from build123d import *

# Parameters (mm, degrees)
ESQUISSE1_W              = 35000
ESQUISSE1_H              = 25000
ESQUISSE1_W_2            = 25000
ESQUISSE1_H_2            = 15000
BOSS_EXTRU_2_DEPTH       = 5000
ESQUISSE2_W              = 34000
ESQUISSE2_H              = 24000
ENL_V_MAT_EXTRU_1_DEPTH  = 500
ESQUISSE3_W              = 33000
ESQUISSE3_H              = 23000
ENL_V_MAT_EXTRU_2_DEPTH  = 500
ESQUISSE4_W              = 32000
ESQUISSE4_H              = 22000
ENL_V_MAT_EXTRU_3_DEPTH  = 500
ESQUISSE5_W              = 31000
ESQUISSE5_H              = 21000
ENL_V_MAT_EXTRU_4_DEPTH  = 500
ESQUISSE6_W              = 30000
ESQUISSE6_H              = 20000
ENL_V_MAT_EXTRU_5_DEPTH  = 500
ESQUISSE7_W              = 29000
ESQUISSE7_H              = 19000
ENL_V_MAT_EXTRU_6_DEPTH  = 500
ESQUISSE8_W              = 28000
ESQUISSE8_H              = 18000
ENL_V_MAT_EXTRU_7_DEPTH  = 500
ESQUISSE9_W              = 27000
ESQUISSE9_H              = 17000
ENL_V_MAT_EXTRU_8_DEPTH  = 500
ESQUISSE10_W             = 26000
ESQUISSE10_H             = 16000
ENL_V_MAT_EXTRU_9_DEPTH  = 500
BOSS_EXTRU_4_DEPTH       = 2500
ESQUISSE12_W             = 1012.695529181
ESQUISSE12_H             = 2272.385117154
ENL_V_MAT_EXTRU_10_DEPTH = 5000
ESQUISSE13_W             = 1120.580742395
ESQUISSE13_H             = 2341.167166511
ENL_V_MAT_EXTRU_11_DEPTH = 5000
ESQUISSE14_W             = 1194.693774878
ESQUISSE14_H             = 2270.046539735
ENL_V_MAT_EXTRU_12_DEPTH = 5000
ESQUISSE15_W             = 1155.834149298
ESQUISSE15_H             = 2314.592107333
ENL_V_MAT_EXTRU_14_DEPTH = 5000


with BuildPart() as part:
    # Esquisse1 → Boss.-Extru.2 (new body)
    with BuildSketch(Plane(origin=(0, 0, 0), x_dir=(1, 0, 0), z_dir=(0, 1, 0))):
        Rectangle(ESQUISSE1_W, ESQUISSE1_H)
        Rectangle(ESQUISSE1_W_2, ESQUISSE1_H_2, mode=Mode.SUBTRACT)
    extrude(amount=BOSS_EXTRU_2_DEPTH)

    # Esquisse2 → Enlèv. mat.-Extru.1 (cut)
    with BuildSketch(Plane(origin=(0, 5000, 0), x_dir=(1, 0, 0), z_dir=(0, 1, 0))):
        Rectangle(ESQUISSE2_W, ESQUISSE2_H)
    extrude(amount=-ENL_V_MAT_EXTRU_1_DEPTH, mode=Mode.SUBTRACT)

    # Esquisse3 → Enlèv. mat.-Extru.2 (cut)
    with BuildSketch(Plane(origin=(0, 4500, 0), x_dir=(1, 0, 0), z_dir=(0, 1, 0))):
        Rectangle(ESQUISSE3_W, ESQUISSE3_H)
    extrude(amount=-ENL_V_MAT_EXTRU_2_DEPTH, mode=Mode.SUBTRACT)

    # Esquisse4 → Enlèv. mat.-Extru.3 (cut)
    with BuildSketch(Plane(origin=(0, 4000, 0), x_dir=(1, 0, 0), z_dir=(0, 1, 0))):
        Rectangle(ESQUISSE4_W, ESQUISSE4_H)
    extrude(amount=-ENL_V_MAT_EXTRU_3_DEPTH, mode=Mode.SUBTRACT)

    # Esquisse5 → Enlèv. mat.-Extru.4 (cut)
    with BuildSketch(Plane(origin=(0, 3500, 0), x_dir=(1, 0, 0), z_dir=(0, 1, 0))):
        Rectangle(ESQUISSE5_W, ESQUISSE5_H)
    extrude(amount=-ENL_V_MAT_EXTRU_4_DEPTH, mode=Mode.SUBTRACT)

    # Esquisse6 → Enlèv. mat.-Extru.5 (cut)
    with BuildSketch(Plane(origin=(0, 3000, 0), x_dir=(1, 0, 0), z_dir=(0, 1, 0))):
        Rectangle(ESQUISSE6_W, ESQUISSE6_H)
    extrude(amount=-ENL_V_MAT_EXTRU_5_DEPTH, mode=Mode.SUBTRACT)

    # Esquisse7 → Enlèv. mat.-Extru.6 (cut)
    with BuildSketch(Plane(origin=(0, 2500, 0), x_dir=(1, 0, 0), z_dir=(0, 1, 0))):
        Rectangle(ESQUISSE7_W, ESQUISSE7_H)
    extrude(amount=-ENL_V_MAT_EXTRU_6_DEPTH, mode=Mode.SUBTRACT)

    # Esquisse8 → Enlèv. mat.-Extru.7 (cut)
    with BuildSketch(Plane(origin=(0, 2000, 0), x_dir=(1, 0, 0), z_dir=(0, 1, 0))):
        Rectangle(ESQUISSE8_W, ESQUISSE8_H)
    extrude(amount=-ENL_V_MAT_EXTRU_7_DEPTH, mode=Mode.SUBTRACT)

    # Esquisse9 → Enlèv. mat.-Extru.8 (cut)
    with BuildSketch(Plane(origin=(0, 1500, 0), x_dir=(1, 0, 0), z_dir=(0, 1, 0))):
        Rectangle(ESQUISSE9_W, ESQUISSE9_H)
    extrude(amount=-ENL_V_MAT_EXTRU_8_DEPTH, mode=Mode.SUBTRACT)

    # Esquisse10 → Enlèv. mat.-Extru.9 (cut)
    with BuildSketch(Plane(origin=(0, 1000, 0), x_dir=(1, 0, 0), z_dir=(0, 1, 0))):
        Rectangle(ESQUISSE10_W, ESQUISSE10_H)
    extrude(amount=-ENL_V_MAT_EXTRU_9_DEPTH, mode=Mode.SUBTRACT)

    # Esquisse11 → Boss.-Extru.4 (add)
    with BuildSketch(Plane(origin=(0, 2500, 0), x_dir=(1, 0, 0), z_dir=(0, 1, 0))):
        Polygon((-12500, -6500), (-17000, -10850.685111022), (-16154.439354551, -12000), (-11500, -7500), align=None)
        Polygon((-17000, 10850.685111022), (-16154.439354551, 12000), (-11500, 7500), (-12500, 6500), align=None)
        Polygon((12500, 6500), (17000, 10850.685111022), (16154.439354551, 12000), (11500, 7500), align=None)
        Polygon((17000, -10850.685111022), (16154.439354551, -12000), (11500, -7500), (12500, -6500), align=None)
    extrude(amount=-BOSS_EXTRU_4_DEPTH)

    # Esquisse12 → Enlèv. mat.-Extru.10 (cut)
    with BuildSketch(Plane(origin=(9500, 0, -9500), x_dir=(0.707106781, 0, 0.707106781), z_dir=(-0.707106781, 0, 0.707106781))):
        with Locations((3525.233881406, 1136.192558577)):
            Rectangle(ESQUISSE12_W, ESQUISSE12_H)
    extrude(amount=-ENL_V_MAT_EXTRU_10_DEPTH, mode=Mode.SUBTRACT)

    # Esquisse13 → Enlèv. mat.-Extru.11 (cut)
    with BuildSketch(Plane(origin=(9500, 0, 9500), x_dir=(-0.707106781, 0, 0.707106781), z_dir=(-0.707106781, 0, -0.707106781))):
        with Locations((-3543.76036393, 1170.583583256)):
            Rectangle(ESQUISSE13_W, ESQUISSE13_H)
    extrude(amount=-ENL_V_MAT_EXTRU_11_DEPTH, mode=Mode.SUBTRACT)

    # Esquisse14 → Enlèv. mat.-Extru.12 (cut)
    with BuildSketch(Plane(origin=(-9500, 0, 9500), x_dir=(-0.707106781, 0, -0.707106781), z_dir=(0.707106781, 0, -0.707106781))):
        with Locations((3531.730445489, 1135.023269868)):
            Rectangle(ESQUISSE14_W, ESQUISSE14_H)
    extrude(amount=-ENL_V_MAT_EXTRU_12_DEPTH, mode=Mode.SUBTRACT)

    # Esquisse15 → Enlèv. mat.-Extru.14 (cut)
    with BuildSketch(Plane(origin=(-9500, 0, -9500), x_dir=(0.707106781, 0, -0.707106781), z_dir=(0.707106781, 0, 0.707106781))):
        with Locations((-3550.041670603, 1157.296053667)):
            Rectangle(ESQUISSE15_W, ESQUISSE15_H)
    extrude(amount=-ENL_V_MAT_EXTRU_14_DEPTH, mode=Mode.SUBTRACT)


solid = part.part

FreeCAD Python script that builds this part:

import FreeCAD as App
import Part
import Sketcher
from FreeCAD import Vector
Q = App.Units.Quantity

doc = App.newDocument("Part")
params = doc.addObject("Spreadsheet::Sheet", "Params")
for row, (alias, value) in enumerate([
    ("sketch1_width", "35000 mm"),
    ("sketch1_width2", "25000 mm"),
    ("sketch1_height", "15000 mm"),
    ("pad1_length", "5000 mm"),
    ("sketch2_width", "34000 mm"),
    ("sketch2_height", "24000 mm"),
    ("pocket1_length", "500 mm"),
    ("sketch3_width", "33000 mm"),
    ("sketch3_height", "23000 mm"),
    ("pocket2_length", "500 mm"),
    ("sketch4_width", "32000 mm"),
    ("sketch4_height", "22000 mm"),
    ("pocket3_length", "500 mm"),
    ("sketch5_width", "31000 mm"),
    ("sketch5_height", "21000 mm"),
    ("pocket4_length", "500 mm"),
    ("sketch6_width", "30000 mm"),
    ("sketch6_height", "20000 mm"),
    ("pocket5_length", "500 mm"),
    ("sketch7_width", "29000 mm"),
    ("sketch7_height", "19000 mm"),
    ("pocket6_length", "500 mm"),
    ("sketch8_width", "28000 mm"),
    ("sketch8_height", "18000 mm"),
    ("pocket7_length", "500 mm"),
    ("sketch9_width", "27000 mm"),
    ("sketch9_height", "17000 mm"),
    ("pocket8_length", "500 mm"),
    ("sketch10_width", "26000 mm"),
    ("sketch10_height", "16000 mm"),
    ("pocket9_length", "500 mm"),
    ("sketch11_length", "6259.27 mm"),
    ("pad2_length", "2500 mm"),
    ("pocket10_length", "5000 mm"),
    ("pocket11_length", "5000 mm"),
    ("pocket12_length", "5000 mm"),
    ("pocket13_length", "5000 mm"),
], start=1):
    params.set(f"A{row}", alias)
    params.set(f"B{row}", "=" + value)
    params.setAlias(f"B{row}", alias)

body = doc.addObject("PartDesign::Body", "Body")

sketch1 = doc.addObject("Sketcher::SketchObject", "Sketch")
body.addObject(sketch1)
sketch1.AttachmentSupport = (doc.XZ_Plane, [""])
sketch1.MapMode = "FlatFace"
sketch1.addGeometry([
    Part.LineSegment(Vector(-17500, -12500, 0), Vector(-17500, 12500, 0)),
    Part.LineSegment(Vector(-17500, 12500, 0), Vector(17500, 12500, 0)),
    Part.LineSegment(Vector(17500, 12500, 0), Vector(17500, -12500, 0)),
    Part.LineSegment(Vector(17500, -12500, 0), Vector(-17500, -12500, 0)),
    Part.LineSegment(Vector(12500, 7500, 0), Vector(-12500, 7500, 0)),
    Part.LineSegment(Vector(-12500, 7500, 0), Vector(-12500, -7500, 0)),
    Part.LineSegment(Vector(-12500, -7500, 0), Vector(12500, -7500, 0)),
    Part.LineSegment(Vector(12500, -7500, 0), Vector(12500, 7500, 0)),
], False)
sketch1.addConstraint([
    Sketcher.Constraint("Coincident", 0, 2, 1, 1),
    Sketcher.Constraint("Coincident", 1, 2, 2, 1),
    Sketcher.Constraint("Coincident", 2, 2, 3, 1),
    Sketcher.Constraint("Coincident", 3, 2, 0, 1),
    Sketcher.Constraint("Coincident", 4, 2, 5, 1),
    Sketcher.Constraint("Coincident", 5, 2, 6, 1),
    Sketcher.Constraint("Coincident", 6, 2, 7, 1),
    Sketcher.Constraint("Coincident", 7, 2, 4, 1),
    Sketcher.Constraint("Vertical", 0),
    Sketcher.Constraint("Horizontal", 1),
    Sketcher.Constraint("Vertical", 2),
    Sketcher.Constraint("Horizontal", 3),
    Sketcher.Constraint("Horizontal", 4),
    Sketcher.Constraint("Vertical", 5),
    Sketcher.Constraint("Horizontal", 6),
    Sketcher.Constraint("Vertical", 7),
    Sketcher.Constraint("Symmetric", 0, 2, 2, 2, -1, 1),
    Sketcher.Constraint("Symmetric", 4, 2, 6, 2, -1, 1),
    Sketcher.Constraint("Equal", 6, 0),
    Sketcher.Constraint("DistanceX", 1, 1, 1, 2, Q("35000 mm")),
    Sketcher.Constraint("DistanceX", 4, 2, 4, 1, Q("25000 mm")),
    Sketcher.Constraint("DistanceY", 5, 2, 5, 1, Q("15000 mm")),
])
sketch1.setExpression("Constraints[19]", "Params.sketch1_width")
sketch1.setExpression("Constraints[20]", "Params.sketch1_width2")
sketch1.setExpression("Constraints[21]", "Params.sketch1_height")
pad1 = doc.addObject("PartDesign::Pad", "Pad")
body.addObject(pad1)
pad1.Profile = sketch1
pad1.setExpression("Length", "Params.pad1_length")
pad1.Reversed = True

sketch2 = doc.addObject("Sketcher::SketchObject", "Sketch001")
body.addObject(sketch2)
sketch2.AttachmentSupport = (doc.XZ_Plane, [""])
sketch2.MapMode = "FlatFace"
sketch2.AttachmentOffset = App.Placement(Vector(0, 0, -5000), App.Rotation())
sketch2.addGeometry([
    Part.LineSegment(Vector(-17000, -12000, 0), Vector(-17000, 12000, 0)),
    Part.LineSegment(Vector(-17000, 12000, 0), Vector(17000, 12000, 0)),
    Part.LineSegment(Vector(17000, 12000, 0), Vector(17000, -12000, 0)),
    Part.LineSegment(Vector(17000, -12000, 0), Vector(-17000, -12000, 0)),
], False)
sketch2.addConstraint([
    Sketcher.Constraint("Coincident", 0, 2, 1, 1),
    Sketcher.Constraint("Coincident", 1, 2, 2, 1),
    Sketcher.Constraint("Coincident", 2, 2, 3, 1),
    Sketcher.Constraint("Coincident", 3, 2, 0, 1),
    Sketcher.Constraint("Vertical", 0),
    Sketcher.Constraint("Horizontal", 1),
    Sketcher.Constraint("Vertical", 2),
    Sketcher.Constraint("Horizontal", 3),
    Sketcher.Constraint("Symmetric", 0, 2, 2, 2, -1, 1),
    Sketcher.Constraint("DistanceX", 1, 1, 1, 2, Q("34000 mm")),
    Sketcher.Constraint("DistanceY", 0, 1, 0, 2, Q("24000 mm")),
])
sketch2.setExpression("Constraints[9]", "Params.sketch2_width")
sketch2.setExpression("Constraints[10]", "Params.sketch2_height")
pocket1 = doc.addObject("PartDesign::Pocket", "Pocket")
body.addObject(pocket1)
pocket1.Profile = sketch2
pocket1.setExpression("Length", "Params.pocket1_length")
pocket1.Reversed = True

sketch3 = doc.addObject("Sketcher::SketchObject", "Sketch002")
body.addObject(sketch3)
sketch3.AttachmentSupport = (doc.XZ_Plane, [""])
sketch3.MapMode = "FlatFace"
sketch3.AttachmentOffset = App.Placement(Vector(0, 0, -4500), App.Rotation())
sketch3.addGeometry([
    Part.LineSegment(Vector(-16500, -11500, 0), Vector(-16500, 11500, 0)),
    Part.LineSegment(Vector(-16500, 11500, 0), Vector(16500, 11500, 0)),
    Part.LineSegment(Vector(16500, 11500, 0), Vector(16500, -11500, 0)),
    Part.LineSegment(Vector(16500, -11500, 0), Vector(-16500, -11500, 0)),
], False)
sketch3.addConstraint([
    Sketcher.Constraint("Coincident", 0, 2, 1, 1),
    Sketcher.Constraint("Coincident", 1, 2, 2, 1),
    Sketcher.Constraint("Coincident", 2, 2, 3, 1),
    Sketcher.Constraint("Coincident", 3, 2, 0, 1),
    Sketcher.Constraint("Vertical", 0),
    Sketcher.Constraint("Horizontal", 1),
    Sketcher.Constraint("Vertical", 2),
    Sketcher.Constraint("Horizontal", 3),
    Sketcher.Constraint("Symmetric", 0, 2, 2, 2, -1, 1),
    Sketcher.Constraint("DistanceX", 1, 1, 1, 2, Q("33000 mm")),
    Sketcher.Constraint("DistanceY", 0, 1, 0, 2, Q("23000 mm")),
])
sketch3.setExpression("Constraints[9]", "Params.sketch3_width")
sketch3.setExpression("Constraints[10]", "Params.sketch3_height")
pocket2 = doc.addObject("PartDesign::Pocket", "Pocket001")
body.addObject(pocket2)
pocket2.Profile = sketch3
pocket2.setExpression("Length", "Params.pocket2_length")
pocket2.Reversed = True

sketch4 = doc.addObject("Sketcher::SketchObject", "Sketch003")
body.addObject(sketch4)
sketch4.AttachmentSupport = (doc.XZ_Plane, [""])
sketch4.MapMode = "FlatFace"
sketch4.AttachmentOffset = App.Placement(Vector(0, 0, -4000), App.Rotation())
sketch4.addGeometry([
    Part.LineSegment(Vector(-16000, -11000, 0), Vector(-16000, 11000, 0)),
    Part.LineSegment(Vector(-16000, 11000, 0), Vector(16000, 11000, 0)),
    Part.LineSegment(Vector(16000, 11000, 0), Vector(16000, -11000, 0)),
    Part.LineSegment(Vector(16000, -11000, 0), Vector(-16000, -11000, 0)),
], False)
sketch4.addConstraint([
    Sketcher.Constraint("Coincident", 0, 2, 1, 1),
    Sketcher.Constraint("Coincident", 1, 2, 2, 1),
    Sketcher.Constraint("Coincident", 2, 2, 3, 1),
    Sketcher.Constraint("Coincident", 3, 2, 0, 1),
    Sketcher.Constraint("Vertical", 0),
    Sketcher.Constraint("Horizontal", 1),
    Sketcher.Constraint("Vertical", 2),
    Sketcher.Constraint("Horizontal", 3),
    Sketcher.Constraint("Symmetric", 0, 2, 2, 2, -1, 1),
    Sketcher.Constraint("DistanceX", 1, 1, 1, 2, Q("32000 mm")),
    Sketcher.Constraint("DistanceY", 0, 1, 0, 2, Q("22000 mm")),
])
sketch4.setExpression("Constraints[9]", "Params.sketch4_width")
sketch4.setExpression("Constraints[10]", "Params.sketch4_height")
pocket3 = doc.addObject("PartDesign::Pocket", "Pocket002")
body.addObject(pocket3)
pocket3.Profile = sketch4
pocket3.setExpression("Length", "Params.pocket3_length")
pocket3.Reversed = True

sketch5 = doc.addObject("Sketcher::SketchObject", "Sketch004")
body.addObject(sketch5)
sketch5.AttachmentSupport = (doc.XZ_Plane, [""])
sketch5.MapMode = "FlatFace"
sketch5.AttachmentOffset = App.Placement(Vector(0, 0, -3500), App.Rotation())
sketch5.addGeometry([
    Part.LineSegment(Vector(-15500, -10500, 0), Vector(-15500, 10500, 0)),
    Part.LineSegment(Vector(-15500, 10500, 0), Vector(15500, 10500, 0)),
    Part.LineSegment(Vector(15500, 10500, 0), Vector(15500, -10500, 0)),
    Part.LineSegment(Vector(15500, -10500, 0), Vector(-15500, -10500, 0)),
], False)
sketch5.addConstraint([
    Sketcher.Constraint("Coincident", 0, 2, 1, 1),
    Sketcher.Constraint("Coincident", 1, 2, 2, 1),
    Sketcher.Constraint("Coincident", 2, 2, 3, 1),
    Sketcher.Constraint("Coincident", 3, 2, 0, 1),
    Sketcher.Constraint("Vertical", 0),
    Sketcher.Constraint("Horizontal", 1),
    Sketcher.Constraint("Vertical", 2),
    Sketcher.Constraint("Horizontal", 3),
    Sketcher.Constraint("Symmetric", 0, 2, 2, 2, -1, 1),
    Sketcher.Constraint("DistanceX", 1, 1, 1, 2, Q("31000 mm")),
    Sketcher.Constraint("DistanceY", 0, 1, 0, 2, Q("21000 mm")),
])
sketch5.setExpression("Constraints[9]", "Params.sketch5_width")
sketch5.setExpression("Constraints[10]", "Params.sketch5_height")
pocket4 = doc.addObject("PartDesign::Pocket", "Pocket003")
body.addObject(pocket4)
pocket4.Profile = sketch5
pocket4.setExpression("Length", "Params.pocket4_length")
pocket4.Reversed = True

sketch6 = doc.addObject("Sketcher::SketchObject", "Sketch005")
body.addObject(sketch6)
sketch6.AttachmentSupport = (doc.XZ_Plane, [""])
sketch6.MapMode = "FlatFace"
sketch6.AttachmentOffset = App.Placement(Vector(0, 0, -3000), App.Rotation())
sketch6.addGeometry([
    Part.LineSegment(Vector(-15000, -10000, 0), Vector(-15000, 10000, 0)),
    Part.LineSegment(Vector(-15000, 10000, 0), Vector(15000, 10000, 0)),
    Part.LineSegment(Vector(15000, 10000, 0), Vector(15000, -10000, 0)),
    Part.LineSegment(Vector(15000, -10000, 0), Vector(-15000, -10000, 0)),
], False)
sketch6.addConstraint([
    Sketcher.Constraint("Coincident", 0, 2, 1, 1),
    Sketcher.Constraint("Coincident", 1, 2, 2, 1),
    Sketcher.Constraint("Coincident", 2, 2, 3, 1),
    Sketcher.Constraint("Coincident", 3, 2, 0, 1),
    Sketcher.Constraint("Vertical", 0),
    Sketcher.Constraint("Horizontal", 1),
    Sketcher.Constraint("Vertical", 2),
    Sketcher.Constraint("Horizontal", 3),
    Sketcher.Constraint("Symmetric", 0, 2, 2, 2, -1, 1),
    Sketcher.Constraint("DistanceX", 1, 1, 1, 2, Q("30000 mm")),
    Sketcher.Constraint("DistanceY", 0, 1, 0, 2, Q("20000 mm")),
])
sketch6.setExpression("Constraints[9]", "Params.sketch6_width")
sketch6.setExpression("Constraints[10]", "Params.sketch6_height")
pocket5 = doc.addObject("PartDesign::Pocket", "Pocket004")
body.addObject(pocket5)
pocket5.Profile = sketch6
pocket5.setExpression("Length", "Params.pocket5_length")
pocket5.Reversed = True

sketch7 = doc.addObject("Sketcher::SketchObject", "Sketch006")
body.addObject(sketch7)
sketch7.AttachmentSupport = (doc.XZ_Plane, [""])
sketch7.MapMode = "FlatFace"
sketch7.AttachmentOffset = App.Placement(Vector(0, 0, -2500), App.Rotation())
sketch7.addGeometry([
    Part.LineSegment(Vector(-14500, -9500, 0), Vector(-14500, 9500, 0)),
    Part.LineSegment(Vector(-14500, 9500, 0), Vector(14500, 9500, 0)),
    Part.LineSegment(Vector(14500, 9500, 0), Vector(14500, -9500, 0)),
    Part.LineSegment(Vector(14500, -9500, 0), Vector(-14500, -9500, 0)),
], False)
sketch7.addConstraint([
    Sketcher.Constraint("Coincident", 0, 2, 1, 1),
    Sketcher.Constraint("Coincident", 1, 2, 2, 1),
    Sketcher.Constraint("Coincident", 2, 2, 3, 1),
    Sketcher.Constraint("Coincident", 3, 2, 0, 1),
    Sketcher.Constraint("Vertical", 0),
    Sketcher.Constraint("Horizontal", 1),
    Sketcher.Constraint("Vertical", 2),
    Sketcher.Constraint("Horizontal", 3),
    Sketcher.Constraint("Symmetric", 0, 2, 2, 2, -1, 1),
    Sketcher.Constraint("DistanceX", 1, 1, 1, 2, Q("29000 mm")),
    Sketcher.Constraint("DistanceY", 0, 1, 0, 2, Q("19000 mm")),
])
sketch7.setExpression("Constraints[9]", "Params.sketch7_width")
sketch7.setExpression("Constraints[10]", "Params.sketch7_height")
pocket6 = doc.addObject("PartDesign::Pocket", "Pocket005")
body.addObject(pocket6)
pocket6.Profile = sketch7
pocket6.setExpression("Length", "Params.pocket6_length")
pocket6.Reversed = True

sketch8 = doc.addObject("Sketcher::SketchObject", "Sketch007")
body.addObject(sketch8)
sketch8.AttachmentSupport = (doc.XZ_Plane, [""])
sketch8.MapMode = "FlatFace"
sketch8.AttachmentOffset = App.Placement(Vector(0, 0, -2000), App.Rotation())
sketch8.addGeometry([
    Part.LineSegment(Vector(-14000, -9000, 0), Vector(-14000, 9000, 0)),
    Part.LineSegment(Vector(-14000, 9000, 0), Vector(14000, 9000, 0)),
    Part.LineSegment(Vector(14000, 9000, 0), Vector(14000, -9000, 0)),
    Part.LineSegment(Vector(14000, -9000, 0), Vector(-14000, -9000, 0)),
], False)
sketch8.addConstraint([
    Sketcher.Constraint("Coincident", 0, 2, 1, 1),
    Sketcher.Constraint("Coincident", 1, 2, 2, 1),
    Sketcher.Constraint("Coincident", 2, 2, 3, 1),
    Sketcher.Constraint("Coincident", 3, 2, 0, 1),
    Sketcher.Constraint("Vertical", 0),
    Sketcher.Constraint("Horizontal", 1),
    Sketcher.Constraint("Vertical", 2),
    Sketcher.Constraint("Horizontal", 3),
    Sketcher.Constraint("Symmetric", 0, 2, 2, 2, -1, 1),
    Sketcher.Constraint("DistanceX", 1, 1, 1, 2, Q("28000 mm")),
    Sketcher.Constraint("DistanceY", 0, 1, 0, 2, Q("18000 mm")),
])
sketch8.setExpression("Constraints[9]", "Params.sketch8_width")
sketch8.setExpression("Constraints[10]", "Params.sketch8_height")
pocket7 = doc.addObject("PartDesign::Pocket", "Pocket006")
body.addObject(pocket7)
pocket7.Profile = sketch8
pocket7.setExpression("Length", "Params.pocket7_length")
pocket7.Reversed = True

sketch9 = doc.addObject("Sketcher::SketchObject", "Sketch008")
body.addObject(sketch9)
sketch9.AttachmentSupport = (doc.XZ_Plane, [""])
sketch9.MapMode = "FlatFace"
sketch9.AttachmentOffset = App.Placement(Vector(0, 0, -1500), App.Rotation())
sketch9.addGeometry([
    Part.LineSegment(Vector(-13500, -8500, 0), Vector(-13500, 8500, 0)),
    Part.LineSegment(Vector(-13500, 8500, 0), Vector(13500, 8500, 0)),
    Part.LineSegment(Vector(13500, 8500, 0), Vector(13500, -8500, 0)),
    Part.LineSegment(Vector(13500, -8500, 0), Vector(-13500, -8500, 0)),
], False)
sketch9.addConstraint([
    Sketcher.Constraint("Coincident", 0, 2, 1, 1),
    Sketcher.Constraint("Coincident", 1, 2, 2, 1),
    Sketcher.Constraint("Coincident", 2, 2, 3, 1),
    Sketcher.Constraint("Coincident", 3, 2, 0, 1),
    Sketcher.Constraint("Vertical", 0),
    Sketcher.Constraint("Horizontal", 1),
    Sketcher.Constraint("Vertical", 2),
    Sketcher.Constraint("Horizontal", 3),
    Sketcher.Constraint("Symmetric", 0, 2, 2, 2, -1, 1),
    Sketcher.Constraint("DistanceX", 1, 1, 1, 2, Q("27000 mm")),
    Sketcher.Constraint("DistanceY", 0, 1, 0, 2, Q("17000 mm")),
])
sketch9.setExpression("Constraints[9]", "Params.sketch9_width")
sketch9.setExpression("Constraints[10]", "Params.sketch9_height")
pocket8 = doc.addObject("PartDesign::Pocket", "Pocket007")
body.addObject(pocket8)
pocket8.Profile = sketch9
pocket8.setExpression("Length", "Params.pocket8_length")
pocket8.Reversed = True

sketch10 = doc.addObject("Sketcher::SketchObject", "Sketch009")
body.addObject(sketch10)
sketch10.AttachmentSupport = (doc.XZ_Plane, [""])
sketch10.MapMode = "FlatFace"
sketch10.AttachmentOffset = App.Placement(Vector(0, 0, -1000), App.Rotation())
sketch10.addGeometry([
    Part.LineSegment(Vector(-13000, -8000, 0), Vector(-13000, 8000, 0)),
    Part.LineSegment(Vector(-13000, 8000, 0), Vector(13000, 8000, 0)),
    Part.LineSegment(Vector(13000, 8000, 0), Vector(13000, -8000, 0)),
    Part.LineSegment(Vector(13000, -8000, 0), Vector(-13000, -8000, 0)),
], False)
sketch10.addConstraint([
    Sketcher.Constraint("Coincident", 0, 2, 1, 1),
    Sketcher.Constraint("Coincident", 1, 2, 2, 1),
    Sketcher.Constraint("Coincident", 2, 2, 3, 1),
    Sketcher.Constraint("Coincident", 3, 2, 0, 1),
    Sketcher.Constraint("Vertical", 0),
    Sketcher.Constraint("Horizontal", 1),
    Sketcher.Constraint("Vertical", 2),
    Sketcher.Constraint("Horizontal", 3),
    Sketcher.Constraint("Symmetric", 0, 2, 2, 2, -1, 1),
    Sketcher.Constraint("DistanceX", 1, 1, 1, 2, Q("26000 mm")),
    Sketcher.Constraint("DistanceY", 0, 1, 0, 2, Q("16000 mm")),
])
sketch10.setExpression("Constraints[9]", "Params.sketch10_width")
sketch10.setExpression("Constraints[10]", "Params.sketch10_height")
pocket9 = doc.addObject("PartDesign::Pocket", "Pocket008")
body.addObject(pocket9)
pocket9.Profile = sketch10
pocket9.setExpression("Length", "Params.pocket9_length")
pocket9.Reversed = True

sketch11 = doc.addObject("Sketcher::SketchObject", "Sketch010")
body.addObject(sketch11)
sketch11.AttachmentSupport = (doc.XZ_Plane, [""])
sketch11.MapMode = "FlatFace"
sketch11.AttachmentOffset = App.Placement(Vector(0, 0, -2500), App.Rotation())
sketch11.addGeometry([
    Part.LineSegment(Vector(-12500, 6500, 0), Vector(-17000, 10851, 0)),
    Part.LineSegment(Vector(-17000, 10851, 0), Vector(-16154, 12000, 0)),
    Part.LineSegment(Vector(-16154, 12000, 0), Vector(-11500, 7500, 0)),
    Part.LineSegment(Vector(-11500, 7500, 0), Vector(-12500, 6500, 0)),
    Part.LineSegment(Vector(-16154, -12000, 0), Vector(-17000, -10851, 0)),
    Part.LineSegment(Vector(-17000, -10851, 0), Vector(-12500, -6500, 0)),
    Part.LineSegment(Vector(-12500, -6500, 0), Vector(-11500, -7500, 0)),
    Part.LineSegment(Vector(-11500, -7500, 0), Vector(-16154, -12000, 0)),
    Part.LineSegment(Vector(12500, -6500, 0), Vector(17000, -10851, 0)),
    Part.LineSegment(Vector(17000, -10851, 0), Vector(16154, -12000, 0)),
    Part.LineSegment(Vector(16154, -12000, 0), Vector(11500, -7500, 0)),
    Part.LineSegment(Vector(11500, -7500, 0), Vector(12500, -6500, 0)),
    Part.LineSegment(Vector(16154, 12000, 0), Vector(17000, 10851, 0)),
    Part.LineSegment(Vector(17000, 10851, 0), Vector(12500, 6500, 0)),
    Part.LineSegment(Vector(12500, 6500, 0), Vector(11500, 7500, 0)),
    Part.LineSegment(Vector(11500, 7500, 0), Vector(16154, 12000, 0)),
], False)
sketch11.addConstraint([
    Sketcher.Constraint("Coincident", 0, 2, 1, 1),
    Sketcher.Constraint("Coincident", 1, 2, 2, 1),
    Sketcher.Constraint("Coincident", 2, 2, 3, 1),
    Sketcher.Constraint("Coincident", 3, 2, 0, 1),
    Sketcher.Constraint("Coincident", 4, 2, 5, 1),
    Sketcher.Constraint("Coincident", 5, 2, 6, 1),
    Sketcher.Constraint("Coincident", 6, 2, 7, 1),
    Sketcher.Constraint("Coincident", 7, 2, 4, 1),
    Sketcher.Constraint("Coincident", 8, 2, 9, 1),
    Sketcher.Constraint("Coincident", 9, 2, 10, 1),
    Sketcher.Constraint("Coincident", 10, 2, 11, 1),
    Sketcher.Constraint("Coincident", 11, 2, 8, 1),
    Sketcher.Constraint("Coincident", 12, 2, 13, 1),
    Sketcher.Constraint("Coincident", 13, 2, 14, 1),
    Sketcher.Constraint("Coincident", 14, 2, 15, 1),
    Sketcher.Constraint("Coincident", 15, 2, 12, 1),
    Sketcher.Constraint("Symmetric", 0, 2, 8, 2, -1, 1),
    Sketcher.Constraint("Symmetric", 1, 2, 9, 2, -1, 1),
    Sketcher.Constraint("Symmetric", 2, 2, 10, 2, -1, 1),
    Sketcher.Constraint("Symmetric", 3, 2, 11, 2, -1, 1),
    Sketcher.Constraint("Symmetric", 4, 2, 12, 2, -1, 1),
    Sketcher.Constraint("Symmetric", 5, 2, 13, 2, -1, 1),
    Sketcher.Constraint("Symmetric", 6, 2, 14, 2, -1, 1),
    Sketcher.Constraint("Symmetric", 7, 2, 15, 2, -1, 1),
    Sketcher.Constraint("Symmetric", 4, 2, 8, 2, -2),
    Sketcher.Constraint("Symmetric", 7, 2, 9, 2, -2),
    Sketcher.Constraint("Symmetric", 6, 2, 10, 2, -2),
    Sketcher.Constraint("Symmetric", 5, 2, 11, 2, -2),
    Sketcher.Constraint("Parallel", 0, 2),
    Sketcher.Constraint("Perpendicular", 3, 6),
    Sketcher.Constraint("DistanceX", 0, 2, -1, 1, Q("17000 mm")),
    Sketcher.Constraint("DistanceY", -1, 1, 1, 2, Q("12000 mm")),
    Sketcher.Constraint("DistanceX", 2, 2, -1, 1, Q("11500 mm")),
    Sketcher.Constraint("DistanceY", -1, 1, 2, 2, Q("7500 mm")),
    Sketcher.Constraint("DistanceX", 3, 2, -1, 1, Q("12500 mm")),
    Sketcher.Constraint("Distance", 0, Q("6259.27 mm")),
])
sketch11.setExpression("Constraints[35]", "Params.sketch11_length")
pad2 = doc.addObject("PartDesign::Pad", "Pad001")
body.addObject(pad2)
pad2.Profile = sketch11
pad2.setExpression("Length", "Params.pad2_length")

sketch12 = doc.addObject("Sketcher::SketchObject", "Sketch011")
body.addObject(sketch12)
sketch12.Placement = App.Placement(Vector(9500, 0, -9500), App.Rotation(Vector(0.707106781, 0, 0.707106781), Vector(0, 0.999999999, 0), Vector(-0.707106781, 0, 0.707106781), "ZXY"))
sketch12.addGeometry([
    Part.LineSegment(Vector(3019, 2272, 0), Vector(3019, 0, 0)),
    Part.LineSegment(Vector(3019, 0, 0), Vector(4032, 0, 0)),
    Part.LineSegment(Vector(4032, 0, 0), Vector(4032, 2272, 0)),
    Part.LineSegment(Vector(4032, 2272, 0), Vector(3019, 2272, 0)),
], False)
sketch12.addConstraint([
    Sketcher.Constraint("Coincident", 0, 2, 1, 1),
    Sketcher.Constraint("Coincident", 1, 2, 2, 1),
    Sketcher.Constraint("Coincident", 2, 2, 3, 1),
    Sketcher.Constraint("Coincident", 3, 2, 0, 1),
    Sketcher.Constraint("Vertical", 0),
    Sketcher.Constraint("Horizontal", 1),
    Sketcher.Constraint("Vertical", 2),
    Sketcher.Constraint("Horizontal", 3),
    Sketcher.Constraint("PointOnObject", 0, 2, -1),
    Sketcher.Constraint("DistanceX", 1, 1, 1, 2, Q("1012.695529 mm")),
    Sketcher.Constraint("DistanceY", 0, 2, 0, 1, Q("2272.385115 mm")),
    Sketcher.Constraint("DistanceX", -1, 1, 0, 2, Q("3018.886115 mm")),
])
pocket10 = doc.addObject("PartDesign::Pocket", "Pocket009")
body.addObject(pocket10)
pocket10.Profile = sketch12
pocket10.setExpression("Length", "Params.pocket10_length")

sketch13 = doc.addObject("Sketcher::SketchObject", "Sketch012")
body.addObject(sketch13)
sketch13.Placement = App.Placement(Vector(9500, 0, 9500), App.Rotation(Vector(-0.707106781, 0, 0.707106781), Vector(0, 0.999999999, 0), Vector(-0.707106781, 0, -0.707106781), "ZXY"))
sketch13.addGeometry([
    Part.LineSegment(Vector(-4104, 2341, 0), Vector(-4104, 0, 0)),
    Part.LineSegment(Vector(-4104, 0, 0), Vector(-2983, 0, 0)),
    Part.LineSegment(Vector(-2983, 0, 0), Vector(-2983, 2341, 0)),
    Part.LineSegment(Vector(-2983, 2341, 0), Vector(-4104, 2341, 0)),
], False)
sketch13.addConstraint([
    Sketcher.Constraint("Coincident", 0, 2, 1, 1),
    Sketcher.Constraint("Coincident", 1, 2, 2, 1),
    Sketcher.Constraint("Coincident", 2, 2, 3, 1),
    Sketcher.Constraint("Coincident", 3, 2, 0, 1),
    Sketcher.Constraint("Vertical", 0),
    Sketcher.Constraint("Horizontal", 1),
    Sketcher.Constraint("Vertical", 2),
    Sketcher.Constraint("Horizontal", 3),
    Sketcher.Constraint("PointOnObject", 0, 2, -1),
    Sketcher.Constraint("DistanceX", 1, 1, 1, 2, Q("1120.580742 mm")),
    Sketcher.Constraint("DistanceY", 0, 2, 0, 1, Q("2341.167164 mm")),
    Sketcher.Constraint("DistanceX", 1, 2, -1, 1, Q("2983.469991 mm")),
])
pocket11 = doc.addObject("PartDesign::Pocket", "Pocket010")
body.addObject(pocket11)
pocket11.Profile = sketch13
pocket11.setExpression("Length", "Params.pocket11_length")

sketch14 = doc.addObject("Sketcher::SketchObject", "Sketch013")
body.addObject(sketch14)
sketch14.Placement = App.Placement(Vector(-9500, 0, 9500), App.Rotation(Vector(-0.707106781, 0, -0.707106781), Vector(0, 0.999999999, 0), Vector(0.707106781, 0, -0.707106781), "ZXY"))
sketch14.addGeometry([
    Part.LineSegment(Vector(2934, 2270, 0), Vector(2934, 0, 0)),
    Part.LineSegment(Vector(2934, 0, 0), Vector(4129, 0, 0)),
    Part.LineSegment(Vector(4129, 0, 0), Vector(4129, 2270, 0)),
    Part.LineSegment(Vector(4129, 2270, 0), Vector(2934, 2270, 0)),
], False)
sketch14.addConstraint([
    Sketcher.Constraint("Coincident", 0, 2, 1, 1),
    Sketcher.Constraint("Coincident", 1, 2, 2, 1),
    Sketcher.Constraint("Coincident", 2, 2, 3, 1),
    Sketcher.Constraint("Coincident", 3, 2, 0, 1),
    Sketcher.Constraint("Vertical", 0),
    Sketcher.Constraint("Horizontal", 1),
    Sketcher.Constraint("Vertical", 2),
    Sketcher.Constraint("Horizontal", 3),
    Sketcher.Constraint("PointOnObject", 0, 2, -1),
    Sketcher.Constraint("DistanceX", 1, 1, 1, 2, Q("1194.693774 mm")),
    Sketcher.Constraint("DistanceY", 0, 2, 0, 1, Q("2270.046537 mm")),
    Sketcher.Constraint("DistanceX", -1, 1, 1, 2, Q("4129.077331 mm")),
])
pocket12 = doc.addObject("PartDesign::Pocket", "Pocket011")
body.addObject(pocket12)
pocket12.Profile = sketch14
pocket12.setExpression("Length", "Params.pocket12_length")

sketch15 = doc.addObject("Sketcher::SketchObject", "Sketch014")
body.addObject(sketch15)
sketch15.Placement = App.Placement(Vector(-9500, 0, -9500), App.Rotation(Vector(0.707106781, 0, -0.707106781), Vector(0, 0.999999999, 0), Vector(0.707106781, 0, 0.707106781), "ZXY"))
sketch15.addGeometry([
    Part.LineSegment(Vector(-4128, 2315, 0), Vector(-4128, 0, 0)),
    Part.LineSegment(Vector(-4128, 0, 0), Vector(-2972, 0, 0)),
    Part.LineSegment(Vector(-2972, 0, 0), Vector(-2972, 2315, 0)),
    Part.LineSegment(Vector(-2972, 2315, 0), Vector(-4128, 2315, 0)),
], False)
sketch15.addConstraint([
    Sketcher.Constraint("Coincident", 0, 2, 1, 1),
    Sketcher.Constraint("Coincident", 1, 2, 2, 1),
    Sketcher.Constraint("Coincident", 2, 2, 3, 1),
    Sketcher.Constraint("Coincident", 3, 2, 0, 1),
    Sketcher.Constraint("Vertical", 0),
    Sketcher.Constraint("Horizontal", 1),
    Sketcher.Constraint("Vertical", 2),
    Sketcher.Constraint("Horizontal", 3),
    Sketcher.Constraint("PointOnObject", 0, 2, -1),
    Sketcher.Constraint("DistanceX", 1, 1, 1, 2, Q("1155.834149 mm")),
    Sketcher.Constraint("DistanceY", 0, 2, 0, 1, Q("2314.592105 mm")),
    Sketcher.Constraint("DistanceX", 0, 2, -1, 1, Q("4127.958743 mm")),
])
pocket13 = doc.addObject("PartDesign::Pocket", "Pocket012")
body.addObject(pocket13)
pocket13.Profile = sketch15
pocket13.setExpression("Length", "Params.pocket13_length")

doc.recompute()
